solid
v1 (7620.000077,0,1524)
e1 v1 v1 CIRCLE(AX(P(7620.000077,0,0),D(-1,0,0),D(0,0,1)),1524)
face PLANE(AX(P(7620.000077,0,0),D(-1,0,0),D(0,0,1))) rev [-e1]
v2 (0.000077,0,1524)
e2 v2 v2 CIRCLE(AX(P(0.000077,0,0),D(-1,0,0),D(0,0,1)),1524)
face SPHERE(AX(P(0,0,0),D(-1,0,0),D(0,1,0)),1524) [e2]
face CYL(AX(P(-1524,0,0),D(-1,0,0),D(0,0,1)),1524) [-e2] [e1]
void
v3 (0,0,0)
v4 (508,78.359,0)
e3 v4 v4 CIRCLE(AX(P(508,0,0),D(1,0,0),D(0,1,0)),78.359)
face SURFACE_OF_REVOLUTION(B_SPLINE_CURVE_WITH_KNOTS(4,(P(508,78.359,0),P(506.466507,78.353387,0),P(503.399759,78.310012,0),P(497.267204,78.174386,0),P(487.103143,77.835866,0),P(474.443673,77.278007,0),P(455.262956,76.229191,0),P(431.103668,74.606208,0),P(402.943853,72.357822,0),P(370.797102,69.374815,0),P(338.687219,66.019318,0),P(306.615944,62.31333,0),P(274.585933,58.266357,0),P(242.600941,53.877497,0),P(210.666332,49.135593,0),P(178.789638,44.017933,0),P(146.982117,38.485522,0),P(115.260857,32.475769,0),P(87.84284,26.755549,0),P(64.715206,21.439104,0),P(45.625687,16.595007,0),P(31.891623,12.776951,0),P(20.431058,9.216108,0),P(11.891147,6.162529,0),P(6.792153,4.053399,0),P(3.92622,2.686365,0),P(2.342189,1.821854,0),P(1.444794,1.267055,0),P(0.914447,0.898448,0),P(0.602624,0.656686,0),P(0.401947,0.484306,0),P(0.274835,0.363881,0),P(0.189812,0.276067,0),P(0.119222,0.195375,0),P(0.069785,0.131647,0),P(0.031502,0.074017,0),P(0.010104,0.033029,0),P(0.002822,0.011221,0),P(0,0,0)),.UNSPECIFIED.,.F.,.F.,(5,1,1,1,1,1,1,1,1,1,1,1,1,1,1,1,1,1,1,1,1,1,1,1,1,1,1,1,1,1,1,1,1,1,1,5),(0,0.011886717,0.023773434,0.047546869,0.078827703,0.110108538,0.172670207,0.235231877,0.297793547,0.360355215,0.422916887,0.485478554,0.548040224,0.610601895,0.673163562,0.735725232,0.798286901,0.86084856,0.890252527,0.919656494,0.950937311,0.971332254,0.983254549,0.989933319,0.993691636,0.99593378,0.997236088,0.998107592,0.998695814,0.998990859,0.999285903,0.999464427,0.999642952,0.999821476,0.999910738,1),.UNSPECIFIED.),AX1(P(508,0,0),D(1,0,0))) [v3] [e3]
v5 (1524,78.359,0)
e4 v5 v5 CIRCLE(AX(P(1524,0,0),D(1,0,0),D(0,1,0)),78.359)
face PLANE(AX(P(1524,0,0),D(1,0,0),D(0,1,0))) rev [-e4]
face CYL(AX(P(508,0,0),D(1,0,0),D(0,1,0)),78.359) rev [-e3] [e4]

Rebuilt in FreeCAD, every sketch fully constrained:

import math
import FreeCAD as App
import Part
import Sketcher
Q = App.Units.Quantity

doc = App.newDocument("Part")
params = doc.addObject("Spreadsheet::Sheet", "Params")
for row, (alias, value) in enumerate([
    ("sketch1_width", "60 in"),
    ("revolution_angle", "360 deg"),
    ("sketch2_radius", "60 in"),
    ("sketch2_width", "300 in"),
    ("revolution2_angle", "360 deg"),
], start=1):
    params.set(f"A{row}", alias)
    params.set(f"B{row}", "=" + value)
    params.setAlias(f"B{row}", alias)

body = doc.addObject("PartDesign::Body", "Body")

# Sketch on XY plane
sketch1 = doc.addObject("Sketcher::SketchObject", "Sketch")
body.addObject(sketch1)
sketch1.AttachmentSupport = (doc.XY_Plane, [""])
sketch1.MapMode = "FlatFace"
sketch1.addGeometry([
    Part.BSplineCurve([App.Vector(0, 0, 0), App.Vector(0.002822, 0.011221, 0), App.Vector(0.010104, 0.033029, 0), App.Vector(0.031502, 0.074017, 0), App.Vector(0.069785, 0.131647, 0), App.Vector(0.119222, 0.195375, 0), App.Vector(0.189812, 0.276067, 0), App.Vector(0.274835, 0.363881, 0), App.Vector(0.401947, 0.484306, 0), App.Vector(0.602624, 0.656686, 0), App.Vector(0.914447, 0.898448, 0), App.Vector(1.444794, 1.267055, 0), App.Vector(2.342189, 1.821854, 0), App.Vector(3.92622, 2.686365, 0), App.Vector(6.792153, 4.053399, 0), App.Vector(11.891147, 6.162529, 0), App.Vector(20.431058, 9.216108, 0), App.Vector(31.891623, 12.776951, 0), App.Vector(45.625687, 16.595007, 0), App.Vector(64.715206, 21.439104, 0), App.Vector(87.84284, 26.755549, 0), App.Vector(115.260857, 32.475769, 0), App.Vector(146.982117, 38.485522, 0), App.Vector(178.789638, 44.017933, 0), App.Vector(210.666332, 49.135593, 0), App.Vector(242.600941, 53.877497, 0), App.Vector(274.585933, 58.266357, 0), App.Vector(306.615944, 62.31333, 0), App.Vector(338.687219, 66.019318, 0), App.Vector(370.797102, 69.374815, 0), App.Vector(402.943853, 72.357822, 0), App.Vector(431.103668, 74.606208, 0), App.Vector(455.262956, 76.229191, 0), App.Vector(474.443673, 77.278007, 0), App.Vector(487.103143, 77.835866, 0), App.Vector(497.267204, 78.174386, 0), App.Vector(503.399759, 78.310012, 0), App.Vector(506.466507, 78.353387, 0), App.Vector(508, 78.359, 0)], [5, 1, 1, 1, 1, 1, 1, 1, 1, 1, 1, 1, 1, 1, 1, 1, 1, 1, 1, 1, 1, 1, 1, 1, 1, 1, 1, 1, 1, 1, 1, 1, 1, 1, 1, 5], [0, 0.000089262, 0.000178524, 0.000357048, 0.000535573, 0.000714097, 0.001009141, 0.001304186, 0.001892408, 0.002763912, 0.00406622, 0.006308364, 0.010066681, 0.016745451, 0.028667746, 0.049062689, 0.080343506, 0.109747473, 0.13915144, 0.201713099, 0.264274768, 0.326836438, 0.389398105, 0.451959776, 0.514521446, 0.577083113, 0.639644785, 0.702206453, 0.764768123, 0.827329793, 0.889891462, 0.921172297, 0.952453131, 0.976226566, 0.988113283, 1], False, 4, [1, 1, 1, 1, 1, 1, 1, 1, 1, 1, 1, 1, 1, 1, 1, 1, 1, 1, 1, 1, 1, 1, 1, 1, 1, 1, 1, 1, 1, 1, 1, 1, 1, 1, 1, 1, 1, 1, 1], False),
    Part.LineSegment(App.Vector(0, 0, 0), App.Vector(1524, 0, 0)),
    Part.LineSegment(App.Vector(1524, 0, 0), App.Vector(1524, 78.359, 0)),
    Part.LineSegment(App.Vector(1524, 78.359, 0), App.Vector(508, 78.359, 0)),
], False)
sketch1.addConstraint([
    Sketcher.Constraint("Block", 0),
    Sketcher.Constraint("Coincident", 0, 1, 1, 1),
    Sketcher.Constraint("Coincident", 1, 2, 2, 1),
    Sketcher.Constraint("Coincident", 2, 2, 3, 1),
    Sketcher.Constraint("Coincident", 3, 2, 0, 2),
    Sketcher.Constraint("Horizontal", 1),
    Sketcher.Constraint("Vertical", 2),
    Sketcher.Constraint("Horizontal", 3),
    Sketcher.Constraint("DistanceX", 1, 1, 1, 2, Q("60 in")),
])
sketch1.setExpression("Constraints[8]", "Params.sketch1_width")
revolution = doc.addObject("PartDesign::Revolution", "Revolution")
body.addObject(revolution)
revolution.Profile = sketch1
revolution.ReferenceAxis = (sketch1, ["H_Axis"])
revolution.setExpression("Angle", "Params.revolution_angle")
body2 = doc.addObject("PartDesign::Body", "Body001")

# Sketch on XY plane
sketch2 = doc.addObject("Sketcher::SketchObject", "Sketch001")
body2.addObject(sketch2)
sketch2.AttachmentSupport = (doc.getObject("XY_Plane001"), [""])
sketch2.MapMode = "FlatFace"
sketch2.addGeometry([
    Part.LineSegment(App.Vector(-1524, 0, 0), App.Vector(7620, 0, 0)),
    Part.LineSegment(App.Vector(7620, 0, 0), App.Vector(7620, 1524, 0)),
    Part.LineSegment(App.Vector(7620, 1524, 0), App.Vector(0, 1524, 0)),
    Part.ArcOfCircle(Part.Circle(App.Vector(0, 0, 0), App.Vector(0, 0, 1), 1524), math.radians(90), math.radians(180)),
], False)
sketch2.addConstraint([
    Sketcher.Constraint("Coincident", 0, 2, 1, 1),
    Sketcher.Constraint("Coincident", 1, 2, 2, 1),
    Sketcher.Constraint("Coincident", 2, 2, 3, 1),
    Sketcher.Constraint("Coincident", 3, 2, 0, 1),
    Sketcher.Constraint("Horizontal", 0),
    Sketcher.Constraint("Vertical", 1),
    Sketcher.Constraint("Horizontal", 2),
    Sketcher.Constraint("Coincident", 3, 3, -1, 1),
    Sketcher.Constraint("PointOnObject", 0, 2, -1),
    Sketcher.Constraint("Radius", 3, Q("60 in")),
    Sketcher.Constraint("DistanceX", 2, 2, 2, 1, Q("300 in")),
    Sketcher.Constraint("DistanceX", 0, 1, 0, 2, Q("9144.000077 mm")),
])
sketch2.setExpression("Constraints[9]", "Params.sketch2_radius")
sketch2.setExpression("Constraints[10]", "Params.sketch2_width")
revolution2 = doc.addObject("PartDesign::Revolution", "Revolution001")
body2.addObject(revolution2)
revolution2.Profile = sketch2
revolution2.ReferenceAxis = (sketch2, ["H_Axis"])
revolution2.setExpression("Angle", "Params.revolution2_angle")
doc.recompute()

boolean = doc.addObject("PartDesign::Boolean", "Boolean")
body2.addObject(boolean)
boolean.Type = "Cut"
boolean.addObjects([body])

doc.recompute()
